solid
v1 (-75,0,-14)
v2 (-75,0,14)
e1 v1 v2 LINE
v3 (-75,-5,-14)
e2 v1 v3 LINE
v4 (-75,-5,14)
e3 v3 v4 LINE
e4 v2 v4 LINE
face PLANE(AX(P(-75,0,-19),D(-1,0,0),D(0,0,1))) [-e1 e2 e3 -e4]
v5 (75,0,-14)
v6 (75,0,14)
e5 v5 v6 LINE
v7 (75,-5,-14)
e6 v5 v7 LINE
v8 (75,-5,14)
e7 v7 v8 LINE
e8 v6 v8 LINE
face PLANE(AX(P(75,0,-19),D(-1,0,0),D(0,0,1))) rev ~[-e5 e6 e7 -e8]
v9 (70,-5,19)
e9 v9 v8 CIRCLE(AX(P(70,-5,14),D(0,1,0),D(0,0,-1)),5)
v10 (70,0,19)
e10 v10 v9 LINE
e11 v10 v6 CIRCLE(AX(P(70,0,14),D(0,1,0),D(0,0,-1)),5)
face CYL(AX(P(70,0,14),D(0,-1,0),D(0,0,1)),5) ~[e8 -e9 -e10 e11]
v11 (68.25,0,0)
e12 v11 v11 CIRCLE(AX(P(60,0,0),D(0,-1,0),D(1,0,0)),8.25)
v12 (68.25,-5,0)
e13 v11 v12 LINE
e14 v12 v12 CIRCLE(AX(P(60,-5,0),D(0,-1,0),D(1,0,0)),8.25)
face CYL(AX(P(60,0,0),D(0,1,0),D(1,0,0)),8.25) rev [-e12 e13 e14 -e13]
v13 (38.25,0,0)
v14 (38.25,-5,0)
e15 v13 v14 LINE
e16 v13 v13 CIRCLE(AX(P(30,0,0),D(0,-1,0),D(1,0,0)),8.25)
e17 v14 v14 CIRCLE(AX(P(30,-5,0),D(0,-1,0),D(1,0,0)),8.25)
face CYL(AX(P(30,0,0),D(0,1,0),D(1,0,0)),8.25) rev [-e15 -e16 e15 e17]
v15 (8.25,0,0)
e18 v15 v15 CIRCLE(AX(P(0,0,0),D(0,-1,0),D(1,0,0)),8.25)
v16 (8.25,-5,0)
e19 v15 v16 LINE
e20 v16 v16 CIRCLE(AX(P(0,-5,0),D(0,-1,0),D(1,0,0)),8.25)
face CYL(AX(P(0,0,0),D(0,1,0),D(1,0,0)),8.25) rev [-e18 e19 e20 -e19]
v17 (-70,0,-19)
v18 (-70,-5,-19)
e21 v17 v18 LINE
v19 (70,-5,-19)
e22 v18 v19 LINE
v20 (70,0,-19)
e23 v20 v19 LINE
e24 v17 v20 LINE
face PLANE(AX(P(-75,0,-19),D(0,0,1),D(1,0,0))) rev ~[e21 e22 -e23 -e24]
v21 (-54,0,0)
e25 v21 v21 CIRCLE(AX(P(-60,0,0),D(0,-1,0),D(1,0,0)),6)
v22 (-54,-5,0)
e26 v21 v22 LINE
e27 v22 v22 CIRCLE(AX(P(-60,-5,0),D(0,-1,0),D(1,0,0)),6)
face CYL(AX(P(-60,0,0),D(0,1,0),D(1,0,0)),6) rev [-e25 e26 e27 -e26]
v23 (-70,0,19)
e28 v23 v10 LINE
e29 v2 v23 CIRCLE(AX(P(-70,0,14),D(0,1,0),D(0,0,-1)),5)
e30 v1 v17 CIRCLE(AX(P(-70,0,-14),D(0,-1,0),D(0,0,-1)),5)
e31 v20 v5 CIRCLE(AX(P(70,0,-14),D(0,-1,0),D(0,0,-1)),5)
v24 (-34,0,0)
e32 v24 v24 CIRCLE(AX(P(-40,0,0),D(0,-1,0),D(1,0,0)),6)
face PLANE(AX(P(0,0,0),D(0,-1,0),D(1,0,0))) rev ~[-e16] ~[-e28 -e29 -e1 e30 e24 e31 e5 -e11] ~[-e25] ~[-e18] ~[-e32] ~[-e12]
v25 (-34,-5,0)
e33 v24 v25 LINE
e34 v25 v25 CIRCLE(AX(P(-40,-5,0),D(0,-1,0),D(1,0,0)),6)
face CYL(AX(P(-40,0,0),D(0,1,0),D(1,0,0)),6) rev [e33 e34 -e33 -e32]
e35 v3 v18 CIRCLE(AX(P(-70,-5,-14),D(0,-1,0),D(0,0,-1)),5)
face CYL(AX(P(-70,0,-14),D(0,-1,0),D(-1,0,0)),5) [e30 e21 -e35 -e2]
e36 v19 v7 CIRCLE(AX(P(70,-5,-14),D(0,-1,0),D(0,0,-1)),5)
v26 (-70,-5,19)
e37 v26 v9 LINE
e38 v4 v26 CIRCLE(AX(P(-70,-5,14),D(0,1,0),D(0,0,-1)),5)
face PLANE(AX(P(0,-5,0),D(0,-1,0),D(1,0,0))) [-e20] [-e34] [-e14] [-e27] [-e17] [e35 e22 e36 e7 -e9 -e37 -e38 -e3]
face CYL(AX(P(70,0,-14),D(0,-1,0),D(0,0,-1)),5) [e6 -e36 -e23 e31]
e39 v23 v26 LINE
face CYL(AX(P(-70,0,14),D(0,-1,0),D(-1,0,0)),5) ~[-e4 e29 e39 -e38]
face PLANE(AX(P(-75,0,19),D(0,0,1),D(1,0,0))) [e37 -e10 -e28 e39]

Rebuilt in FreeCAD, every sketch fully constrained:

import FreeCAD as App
import Part
import Sketcher
from FreeCAD import Vector
Q = App.Units.Quantity


def edges_at(feature, points):
    """Names of the edges that pass closest to the given points."""
    edges = feature.Shape.Edges
    near = lambda p: min(range(len(edges)), key=lambda i: edges[i].distToShape(Part.Vertex(*p))[0])
    return sorted({f"Edge{near(p) + 1}" for p in points})

doc = App.newDocument("Part")
body = doc.addObject("PartDesign::Body", "Body")

sketch1 = body.newObject("Sketcher::SketchObject", "Sketch")
sketch1.AttachmentSupport = (doc.getObject("XZ_Plane"), [""])
sketch1.MapMode = "FlatFace"
sketch1.addGeometry([
    Part.LineSegment(Vector(-75, 19, 0), Vector(-75, -19, 0)),
    Part.LineSegment(Vector(-75, -19, 0), Vector(75, -19, 0)),
    Part.LineSegment(Vector(75, -19, 0), Vector(75, 19, 0)),
    Part.LineSegment(Vector(75, 19, 0), Vector(-75, 19, 0)),
    Part.Circle(Vector(-60, 0, 0), Vector(0, 0, 1), 6),
    Part.Circle(Vector(-40, 0, 0), Vector(0, 0, 1), 6),
    Part.Circle(Vector(0, 0, 0), Vector(0, 0, 1), 8.25),
    Part.Circle(Vector(30, 0, 0), Vector(0, 0, 1), 8.25),
    Part.Circle(Vector(60, 0, 0), Vector(0, 0, 1), 8.25),
], False)
sketch1.addConstraint([
    Sketcher.Constraint("Coincident", 0, 2, 1, 1),
    Sketcher.Constraint("Coincident", 1, 2, 2, 1),
    Sketcher.Constraint("Coincident", 2, 2, 3, 1),
    Sketcher.Constraint("Coincident", 3, 2, 0, 1),
    Sketcher.Constraint("Vertical", 0),
    Sketcher.Constraint("Horizontal", 1),
    Sketcher.Constraint("Vertical", 2),
    Sketcher.Constraint("Horizontal", 3),
    Sketcher.Constraint("Coincident", 6, 3, -1, 1),
    Sketcher.Constraint("Equal", 4, 5),
    Sketcher.Constraint("Equal", 6, 7),
    Sketcher.Constraint("Equal", 7, 8),
    Sketcher.Constraint("Symmetric", 4, 3, 8, 3, -1, 1),
    Sketcher.Constraint("Symmetric", 0, 2, 2, 2, -1, 1),
    Sketcher.Constraint("PointOnObject", 4, 3, -1),
    Sketcher.Constraint("PointOnObject", 5, 3, -1),
    Sketcher.Constraint("PointOnObject", 7, 3, -1),
    Sketcher.Constraint("Diameter", 4, Q("12 mm")),
    Sketcher.Constraint("Diameter", 6, Q("16.5 mm")),
    Sketcher.Constraint("DistanceX", 1, 1, 1, 2, Q("150 mm")),
    Sketcher.Constraint("DistanceY", 0, 2, 0, 1, Q("38 mm")),
    Sketcher.Constraint("DistanceX", 4, 3, -1, 1, Q("60 mm")),
    Sketcher.Constraint("DistanceX", 5, 3, -1, 1, Q("40 mm")),
    Sketcher.Constraint("DistanceX", -1, 1, 7, 3, Q("30 mm")),
])
pad1 = body.newObject("PartDesign::Pad", "Pad")
pad1.Profile = sketch1
pad1.Length = 5
doc.recompute()

fillet = body.newObject("PartDesign::Fillet", "Fillet")
fillet.Base = (pad1, edges_at(pad1, [
    (-75, -2.5, 19),
    (-75, -2.5, -19),
    (75, -2.5, 19),
    (75, -2.5, -19),
]))
fillet.Radius = 5

doc.recompute()
